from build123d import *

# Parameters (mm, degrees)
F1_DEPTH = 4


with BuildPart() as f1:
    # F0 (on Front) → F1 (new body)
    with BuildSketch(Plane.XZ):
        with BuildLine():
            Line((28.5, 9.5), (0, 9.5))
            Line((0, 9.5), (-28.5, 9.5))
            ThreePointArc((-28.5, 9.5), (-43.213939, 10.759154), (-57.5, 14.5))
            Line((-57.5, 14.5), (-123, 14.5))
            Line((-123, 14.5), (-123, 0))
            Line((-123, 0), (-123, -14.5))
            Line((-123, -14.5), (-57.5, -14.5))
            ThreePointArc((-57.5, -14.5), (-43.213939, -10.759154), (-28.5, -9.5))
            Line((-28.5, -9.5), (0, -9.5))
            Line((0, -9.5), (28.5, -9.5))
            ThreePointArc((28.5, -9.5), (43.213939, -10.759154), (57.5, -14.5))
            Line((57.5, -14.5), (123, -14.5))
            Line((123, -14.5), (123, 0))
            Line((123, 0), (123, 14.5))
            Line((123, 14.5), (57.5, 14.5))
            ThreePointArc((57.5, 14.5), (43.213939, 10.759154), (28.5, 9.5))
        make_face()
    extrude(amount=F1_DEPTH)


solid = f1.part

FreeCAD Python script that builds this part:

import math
import FreeCAD as App
import Part
import Sketcher

V = App.Vector
Q = App.Units.Quantity

doc = App.newDocument("Part")
body = doc.addObject("PartDesign::Body", "Body")

# Sketch on XZ plane
sketch1 = body.newObject("Sketcher::SketchObject", "Sketch")
sketch1.AttachmentSupport = (doc.getObject("XZ_Plane"), [""])
sketch1.MapMode = "FlatFace"
sketch1.addGeometry(Part.LineSegment(V(28, 10, 0), V(-28, 10, 0)), False)
sketch1.addGeometry(Part.ArcOfCircle(Part.Circle(V(-28, 96, 0), V(0, 0, 1), 87), math.radians(-109.56), math.radians(-90)), False)
sketch1.addGeometry(Part.LineSegment(V(-58, 14, 0), V(-123, 14, 0)), False)
sketch1.addGeometry(Part.LineSegment(V(-123, 14, 0), V(-123, -14, 0)), False)
sketch1.addGeometry(Part.LineSegment(V(-123, -14, 0), V(-58, -14, 0)), False)
sketch1.addGeometry(Part.ArcOfCircle(Part.Circle(V(-28, -96, 0), V(0, 0, 1), 87), math.radians(90), math.radians(109.56)), False)
sketch1.addGeometry(Part.LineSegment(V(-28, -10, 0), V(28, -10, 0)), False)
sketch1.addGeometry(Part.ArcOfCircle(Part.Circle(V(28, -96, 0), V(0, 0, 1), 87), math.radians(70.44), math.radians(90)), False)
sketch1.addGeometry(Part.LineSegment(V(58, -14, 0), V(123, -14, 0)), False)
sketch1.addGeometry(Part.LineSegment(V(123, -14, 0), V(123, 14, 0)), False)
sketch1.addGeometry(Part.LineSegment(V(123, 14, 0), V(58, 14, 0)), False)
sketch1.addGeometry(Part.ArcOfCircle(Part.Circle(V(28, 96, 0), V(0, 0, 1), 87), math.radians(-90), math.radians(-70.44)), False)
sketch1.addConstraint(Sketcher.Constraint("Tangent", 0, 2, 1, 2))
sketch1.addConstraint(Sketcher.Constraint("Coincident", 1, 1, 2, 1))
sketch1.addConstraint(Sketcher.Constraint("Coincident", 2, 2, 3, 1))
sketch1.addConstraint(Sketcher.Constraint("Coincident", 3, 2, 4, 1))
sketch1.addConstraint(Sketcher.Constraint("Coincident", 4, 2, 5, 2))
sketch1.addConstraint(Sketcher.Constraint("Tangent", 5, 1, 6, 1))
sketch1.addConstraint(Sketcher.Constraint("Tangent", 6, 2, 7, 2))
sketch1.addConstraint(Sketcher.Constraint("Coincident", 7, 1, 8, 1))
sketch1.addConstraint(Sketcher.Constraint("Coincident", 8, 2, 9, 1))
sketch1.addConstraint(Sketcher.Constraint("Coincident", 9, 2, 10, 1))
sketch1.addConstraint(Sketcher.Constraint("Coincident", 10, 2, 11, 2))
sketch1.addConstraint(Sketcher.Constraint("Tangent", 11, 1, 0, 1))
sketch1.addConstraint(Sketcher.Constraint("Horizontal", 0))
sketch1.addConstraint(Sketcher.Constraint("Horizontal", 2))
sketch1.addConstraint(Sketcher.Constraint("Vertical", 3))
sketch1.addConstraint(Sketcher.Constraint("Horizontal", 4))
sketch1.addConstraint(Sketcher.Constraint("Horizontal", 6))
sketch1.addConstraint(Sketcher.Constraint("Horizontal", 8))
sketch1.addConstraint(Sketcher.Constraint("Vertical", 9))
sketch1.addConstraint(Sketcher.Constraint("Horizontal", 10))
sketch1.addConstraint(Sketcher.Constraint("Equal", 1, 5))
sketch1.addConstraint(Sketcher.Constraint("Equal", 5, 7))
sketch1.addConstraint(Sketcher.Constraint("Equal", 7, 11))
sketch1.addConstraint(Sketcher.Constraint("Symmetric", 1, 3, 7, 3, -1, 1))
sketch1.addConstraint(Sketcher.Constraint("Symmetric", 2, 2, 8, 2, -1, 1))
sketch1.addConstraint(Sketcher.Constraint("Symmetric", 4, 2, 10, 2, -1, 1))
sketch1.addConstraint(Sketcher.Constraint("Symmetric", 4, 2, 7, 1, -2))
sketch1.addConstraint(Sketcher.Constraint("Radius", 1, Q("86.600001 mm")))
sketch1.addConstraint(Sketcher.Constraint("DistanceX", 0, 2, 0, 1, Q("57 mm")))
sketch1.addConstraint(Sketcher.Constraint("DistanceY", 3, 2, 3, 1, Q("29 mm")))
sketch1.addConstraint(Sketcher.Constraint("DistanceX", 2, 2, 2, 1, Q("65.5 mm")))
sketch1.addConstraint(Sketcher.Constraint("DistanceX", 2, 2, -1, 1, Q("123 mm")))
pad1 = body.newObject("PartDesign::Pad", "Pad")
pad1.Profile = sketch1
pad1.Length = 4

doc.recompute()
